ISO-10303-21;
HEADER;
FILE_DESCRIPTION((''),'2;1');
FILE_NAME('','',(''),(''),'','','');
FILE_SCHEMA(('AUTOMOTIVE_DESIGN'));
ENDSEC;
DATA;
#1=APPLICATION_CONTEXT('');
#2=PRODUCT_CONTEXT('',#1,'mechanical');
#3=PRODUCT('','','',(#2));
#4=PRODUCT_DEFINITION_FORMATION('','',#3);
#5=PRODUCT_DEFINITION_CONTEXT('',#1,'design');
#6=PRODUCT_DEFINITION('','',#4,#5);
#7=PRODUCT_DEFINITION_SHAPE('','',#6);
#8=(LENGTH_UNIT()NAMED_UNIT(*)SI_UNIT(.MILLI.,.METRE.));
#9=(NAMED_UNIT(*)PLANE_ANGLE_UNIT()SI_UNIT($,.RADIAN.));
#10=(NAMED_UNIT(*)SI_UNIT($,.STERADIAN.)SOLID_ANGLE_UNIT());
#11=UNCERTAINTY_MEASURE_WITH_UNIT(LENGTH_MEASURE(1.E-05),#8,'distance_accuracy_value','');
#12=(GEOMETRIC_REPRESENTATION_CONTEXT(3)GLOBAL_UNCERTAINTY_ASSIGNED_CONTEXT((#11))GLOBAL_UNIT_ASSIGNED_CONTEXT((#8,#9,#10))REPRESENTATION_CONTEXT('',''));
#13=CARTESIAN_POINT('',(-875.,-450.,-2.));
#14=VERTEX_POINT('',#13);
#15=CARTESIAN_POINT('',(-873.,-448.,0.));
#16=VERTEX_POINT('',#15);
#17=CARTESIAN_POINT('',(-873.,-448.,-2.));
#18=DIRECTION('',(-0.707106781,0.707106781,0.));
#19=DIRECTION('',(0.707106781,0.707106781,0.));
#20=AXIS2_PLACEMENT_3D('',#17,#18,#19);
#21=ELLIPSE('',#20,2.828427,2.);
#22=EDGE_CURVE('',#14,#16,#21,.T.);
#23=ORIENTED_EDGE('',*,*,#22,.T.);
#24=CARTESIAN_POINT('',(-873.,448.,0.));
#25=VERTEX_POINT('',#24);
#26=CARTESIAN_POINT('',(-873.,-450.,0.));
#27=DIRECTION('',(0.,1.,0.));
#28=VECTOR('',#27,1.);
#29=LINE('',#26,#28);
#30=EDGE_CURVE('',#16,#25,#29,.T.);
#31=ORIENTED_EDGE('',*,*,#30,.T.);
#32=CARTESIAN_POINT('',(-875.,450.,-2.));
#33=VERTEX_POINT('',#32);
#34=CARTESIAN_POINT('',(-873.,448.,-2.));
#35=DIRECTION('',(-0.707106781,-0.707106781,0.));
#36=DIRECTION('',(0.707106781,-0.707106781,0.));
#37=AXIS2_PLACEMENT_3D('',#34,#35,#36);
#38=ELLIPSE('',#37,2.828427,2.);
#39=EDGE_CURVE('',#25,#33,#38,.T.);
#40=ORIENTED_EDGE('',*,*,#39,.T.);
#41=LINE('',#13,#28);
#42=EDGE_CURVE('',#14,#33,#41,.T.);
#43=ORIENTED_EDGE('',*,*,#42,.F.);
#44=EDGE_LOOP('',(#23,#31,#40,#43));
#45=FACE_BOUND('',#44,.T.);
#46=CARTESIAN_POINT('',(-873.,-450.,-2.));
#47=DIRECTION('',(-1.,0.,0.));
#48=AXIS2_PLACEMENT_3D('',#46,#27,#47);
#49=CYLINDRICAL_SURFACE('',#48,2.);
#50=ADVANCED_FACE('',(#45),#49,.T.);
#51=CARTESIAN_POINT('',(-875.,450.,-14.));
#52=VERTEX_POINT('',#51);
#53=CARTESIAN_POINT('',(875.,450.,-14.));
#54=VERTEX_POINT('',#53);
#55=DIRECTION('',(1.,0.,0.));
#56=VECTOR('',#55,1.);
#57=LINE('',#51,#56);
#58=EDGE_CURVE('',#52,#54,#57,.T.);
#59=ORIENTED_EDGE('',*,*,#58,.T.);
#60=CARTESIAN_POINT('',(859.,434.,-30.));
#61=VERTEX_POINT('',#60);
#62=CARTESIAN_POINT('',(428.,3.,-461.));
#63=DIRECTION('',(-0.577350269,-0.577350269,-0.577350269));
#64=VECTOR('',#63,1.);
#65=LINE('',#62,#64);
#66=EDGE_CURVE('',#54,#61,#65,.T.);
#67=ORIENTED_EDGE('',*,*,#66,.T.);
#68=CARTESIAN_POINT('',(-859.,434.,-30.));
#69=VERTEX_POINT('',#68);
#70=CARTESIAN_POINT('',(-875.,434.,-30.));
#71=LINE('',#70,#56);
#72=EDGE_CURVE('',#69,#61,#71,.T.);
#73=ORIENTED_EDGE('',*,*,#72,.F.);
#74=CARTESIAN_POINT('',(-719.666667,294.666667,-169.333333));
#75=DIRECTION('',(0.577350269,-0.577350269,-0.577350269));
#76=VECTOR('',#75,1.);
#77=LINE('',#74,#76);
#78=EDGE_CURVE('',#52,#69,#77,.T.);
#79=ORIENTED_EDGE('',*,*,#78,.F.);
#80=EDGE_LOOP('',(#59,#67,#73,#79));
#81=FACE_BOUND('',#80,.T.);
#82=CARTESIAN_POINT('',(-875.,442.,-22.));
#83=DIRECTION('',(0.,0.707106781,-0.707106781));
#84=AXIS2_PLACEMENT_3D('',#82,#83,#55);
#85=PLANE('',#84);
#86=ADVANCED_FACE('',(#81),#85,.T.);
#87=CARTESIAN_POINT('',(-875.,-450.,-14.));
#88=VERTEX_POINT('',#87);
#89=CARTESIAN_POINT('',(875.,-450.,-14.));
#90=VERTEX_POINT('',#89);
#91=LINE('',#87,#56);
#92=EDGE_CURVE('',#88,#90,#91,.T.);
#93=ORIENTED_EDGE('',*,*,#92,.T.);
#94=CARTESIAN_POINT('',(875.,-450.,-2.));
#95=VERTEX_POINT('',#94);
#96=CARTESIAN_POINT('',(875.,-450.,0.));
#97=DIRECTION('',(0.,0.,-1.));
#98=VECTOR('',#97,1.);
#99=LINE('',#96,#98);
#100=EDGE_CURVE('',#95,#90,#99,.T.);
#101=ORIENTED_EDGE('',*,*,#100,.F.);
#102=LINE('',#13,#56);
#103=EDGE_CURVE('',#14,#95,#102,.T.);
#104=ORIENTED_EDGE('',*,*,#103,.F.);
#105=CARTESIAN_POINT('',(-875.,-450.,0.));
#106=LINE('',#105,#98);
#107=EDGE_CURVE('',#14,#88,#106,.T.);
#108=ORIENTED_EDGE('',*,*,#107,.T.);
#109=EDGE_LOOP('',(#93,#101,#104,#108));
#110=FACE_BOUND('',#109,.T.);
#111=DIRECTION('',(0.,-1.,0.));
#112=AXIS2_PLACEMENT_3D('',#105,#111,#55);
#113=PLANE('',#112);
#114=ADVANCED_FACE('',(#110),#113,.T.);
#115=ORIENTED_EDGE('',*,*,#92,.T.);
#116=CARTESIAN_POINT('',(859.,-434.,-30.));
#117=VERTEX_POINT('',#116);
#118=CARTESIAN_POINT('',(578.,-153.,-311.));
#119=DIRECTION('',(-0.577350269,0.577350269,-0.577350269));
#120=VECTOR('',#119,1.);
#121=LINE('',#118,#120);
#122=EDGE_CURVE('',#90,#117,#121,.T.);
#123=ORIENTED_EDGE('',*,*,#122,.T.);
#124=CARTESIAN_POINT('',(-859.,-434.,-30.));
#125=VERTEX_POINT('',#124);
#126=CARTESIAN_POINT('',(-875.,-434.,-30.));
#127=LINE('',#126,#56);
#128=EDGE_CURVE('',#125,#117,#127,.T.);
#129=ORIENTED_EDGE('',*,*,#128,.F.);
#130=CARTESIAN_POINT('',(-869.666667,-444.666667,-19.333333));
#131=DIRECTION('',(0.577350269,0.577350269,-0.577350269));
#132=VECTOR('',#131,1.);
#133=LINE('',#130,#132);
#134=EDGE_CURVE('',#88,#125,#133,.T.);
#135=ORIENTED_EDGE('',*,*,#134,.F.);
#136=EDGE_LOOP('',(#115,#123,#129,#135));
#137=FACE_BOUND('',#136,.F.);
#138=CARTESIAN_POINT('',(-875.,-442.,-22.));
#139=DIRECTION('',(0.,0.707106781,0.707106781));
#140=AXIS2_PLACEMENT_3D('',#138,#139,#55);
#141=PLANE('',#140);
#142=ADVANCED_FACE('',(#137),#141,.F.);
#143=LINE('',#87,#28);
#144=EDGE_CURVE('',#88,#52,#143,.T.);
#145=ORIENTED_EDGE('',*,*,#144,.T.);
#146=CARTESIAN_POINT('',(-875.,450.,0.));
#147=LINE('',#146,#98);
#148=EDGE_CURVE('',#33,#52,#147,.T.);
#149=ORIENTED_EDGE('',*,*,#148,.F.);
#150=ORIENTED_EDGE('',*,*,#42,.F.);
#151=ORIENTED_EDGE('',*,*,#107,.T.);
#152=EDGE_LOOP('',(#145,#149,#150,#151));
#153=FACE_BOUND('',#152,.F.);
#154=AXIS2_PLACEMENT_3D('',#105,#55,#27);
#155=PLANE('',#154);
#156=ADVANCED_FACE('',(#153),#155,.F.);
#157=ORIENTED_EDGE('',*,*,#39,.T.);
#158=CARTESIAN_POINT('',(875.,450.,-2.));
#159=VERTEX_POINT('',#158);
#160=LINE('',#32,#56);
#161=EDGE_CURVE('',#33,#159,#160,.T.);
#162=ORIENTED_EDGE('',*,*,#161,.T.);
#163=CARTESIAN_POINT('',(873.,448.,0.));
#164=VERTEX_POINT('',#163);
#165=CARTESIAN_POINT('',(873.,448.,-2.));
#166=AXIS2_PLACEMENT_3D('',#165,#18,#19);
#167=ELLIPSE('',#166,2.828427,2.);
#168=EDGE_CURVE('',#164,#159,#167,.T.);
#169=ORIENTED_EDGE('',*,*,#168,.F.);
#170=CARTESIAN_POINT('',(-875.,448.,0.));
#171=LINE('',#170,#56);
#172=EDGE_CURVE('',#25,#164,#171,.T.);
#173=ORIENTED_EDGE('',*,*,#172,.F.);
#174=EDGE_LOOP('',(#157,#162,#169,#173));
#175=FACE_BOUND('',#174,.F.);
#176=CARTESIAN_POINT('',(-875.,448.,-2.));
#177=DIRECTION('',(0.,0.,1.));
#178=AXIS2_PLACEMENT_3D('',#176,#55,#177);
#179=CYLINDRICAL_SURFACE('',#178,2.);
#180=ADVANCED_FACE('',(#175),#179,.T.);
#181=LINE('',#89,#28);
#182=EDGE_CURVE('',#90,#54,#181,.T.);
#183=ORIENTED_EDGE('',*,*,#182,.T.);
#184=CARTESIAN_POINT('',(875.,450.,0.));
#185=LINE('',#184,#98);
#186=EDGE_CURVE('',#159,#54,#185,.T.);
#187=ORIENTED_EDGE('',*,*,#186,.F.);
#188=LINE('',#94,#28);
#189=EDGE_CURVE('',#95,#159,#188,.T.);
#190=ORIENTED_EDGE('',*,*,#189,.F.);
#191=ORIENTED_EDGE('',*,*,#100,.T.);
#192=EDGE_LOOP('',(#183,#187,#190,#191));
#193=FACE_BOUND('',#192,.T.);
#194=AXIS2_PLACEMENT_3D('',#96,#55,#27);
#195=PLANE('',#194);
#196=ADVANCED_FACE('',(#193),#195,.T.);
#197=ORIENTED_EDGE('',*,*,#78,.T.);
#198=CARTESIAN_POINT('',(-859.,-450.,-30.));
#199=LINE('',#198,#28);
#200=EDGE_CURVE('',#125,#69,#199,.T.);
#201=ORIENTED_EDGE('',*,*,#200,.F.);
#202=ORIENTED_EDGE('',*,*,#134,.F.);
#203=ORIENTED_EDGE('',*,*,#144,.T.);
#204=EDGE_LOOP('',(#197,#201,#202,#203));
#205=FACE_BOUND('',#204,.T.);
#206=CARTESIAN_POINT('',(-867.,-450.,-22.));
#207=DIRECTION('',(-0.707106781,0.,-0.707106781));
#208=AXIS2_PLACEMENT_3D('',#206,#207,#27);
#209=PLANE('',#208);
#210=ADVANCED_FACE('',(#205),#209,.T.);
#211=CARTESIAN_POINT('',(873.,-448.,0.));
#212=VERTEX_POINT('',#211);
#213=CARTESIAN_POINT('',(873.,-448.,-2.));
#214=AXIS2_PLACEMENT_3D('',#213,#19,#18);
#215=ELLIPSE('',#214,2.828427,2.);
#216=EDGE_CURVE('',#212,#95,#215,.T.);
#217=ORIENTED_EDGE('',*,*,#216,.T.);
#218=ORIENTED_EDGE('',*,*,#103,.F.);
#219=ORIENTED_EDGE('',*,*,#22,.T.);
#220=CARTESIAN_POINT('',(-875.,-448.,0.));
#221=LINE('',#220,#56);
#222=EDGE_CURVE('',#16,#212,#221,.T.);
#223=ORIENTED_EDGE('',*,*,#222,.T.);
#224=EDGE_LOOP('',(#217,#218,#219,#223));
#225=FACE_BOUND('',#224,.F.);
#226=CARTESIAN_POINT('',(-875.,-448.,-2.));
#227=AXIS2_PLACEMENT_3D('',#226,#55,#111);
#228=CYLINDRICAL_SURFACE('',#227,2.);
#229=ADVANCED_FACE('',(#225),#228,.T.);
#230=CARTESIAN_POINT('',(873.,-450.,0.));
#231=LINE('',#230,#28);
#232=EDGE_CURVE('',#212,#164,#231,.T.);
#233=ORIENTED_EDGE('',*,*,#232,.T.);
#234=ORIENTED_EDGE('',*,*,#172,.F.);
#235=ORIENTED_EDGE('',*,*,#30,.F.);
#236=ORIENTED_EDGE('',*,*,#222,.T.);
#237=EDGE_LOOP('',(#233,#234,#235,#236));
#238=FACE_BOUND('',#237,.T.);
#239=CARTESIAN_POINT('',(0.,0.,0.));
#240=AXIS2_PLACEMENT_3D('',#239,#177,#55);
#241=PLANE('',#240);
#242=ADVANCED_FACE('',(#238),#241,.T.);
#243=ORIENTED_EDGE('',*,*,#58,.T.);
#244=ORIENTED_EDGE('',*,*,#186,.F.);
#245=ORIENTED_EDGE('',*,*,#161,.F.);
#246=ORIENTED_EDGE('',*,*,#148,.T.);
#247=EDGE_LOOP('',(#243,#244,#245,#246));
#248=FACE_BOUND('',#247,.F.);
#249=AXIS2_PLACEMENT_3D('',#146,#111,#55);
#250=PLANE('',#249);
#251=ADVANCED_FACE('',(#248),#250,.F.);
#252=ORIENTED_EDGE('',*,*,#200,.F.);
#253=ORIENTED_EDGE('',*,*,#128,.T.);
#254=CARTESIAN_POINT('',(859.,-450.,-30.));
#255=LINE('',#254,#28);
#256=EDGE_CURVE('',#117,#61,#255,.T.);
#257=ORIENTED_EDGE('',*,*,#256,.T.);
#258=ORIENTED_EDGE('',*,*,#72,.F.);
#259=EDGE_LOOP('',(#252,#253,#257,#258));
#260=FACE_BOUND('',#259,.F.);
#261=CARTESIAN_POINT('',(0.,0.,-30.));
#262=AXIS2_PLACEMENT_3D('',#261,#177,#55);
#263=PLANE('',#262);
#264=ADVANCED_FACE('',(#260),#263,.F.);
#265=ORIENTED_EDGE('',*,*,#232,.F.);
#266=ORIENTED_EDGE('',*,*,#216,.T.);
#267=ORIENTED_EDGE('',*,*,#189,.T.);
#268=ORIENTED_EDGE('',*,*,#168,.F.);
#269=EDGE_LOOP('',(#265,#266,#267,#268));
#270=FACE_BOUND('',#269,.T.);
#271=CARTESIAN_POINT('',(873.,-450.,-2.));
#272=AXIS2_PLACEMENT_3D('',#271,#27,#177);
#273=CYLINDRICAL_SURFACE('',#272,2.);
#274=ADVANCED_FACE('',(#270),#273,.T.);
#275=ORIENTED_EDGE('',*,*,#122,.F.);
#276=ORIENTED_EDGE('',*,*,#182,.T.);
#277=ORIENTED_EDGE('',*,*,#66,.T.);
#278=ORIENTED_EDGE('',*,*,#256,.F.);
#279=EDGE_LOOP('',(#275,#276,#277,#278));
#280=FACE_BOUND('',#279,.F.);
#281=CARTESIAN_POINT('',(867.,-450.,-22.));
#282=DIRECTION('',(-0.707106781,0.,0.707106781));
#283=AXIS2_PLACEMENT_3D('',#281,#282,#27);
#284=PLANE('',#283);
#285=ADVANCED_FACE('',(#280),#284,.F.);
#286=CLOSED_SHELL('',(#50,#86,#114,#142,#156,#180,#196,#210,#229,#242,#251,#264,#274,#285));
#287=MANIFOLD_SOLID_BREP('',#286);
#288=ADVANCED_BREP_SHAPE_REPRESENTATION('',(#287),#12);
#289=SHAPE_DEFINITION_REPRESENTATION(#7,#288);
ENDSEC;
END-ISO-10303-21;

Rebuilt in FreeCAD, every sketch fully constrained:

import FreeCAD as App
import Part
import Sketcher

V = App.Vector
Q = App.Units.Quantity


def edges_at(feature, points):
    """Names of the edges that pass closest to the given points."""
    edges = feature.Shape.Edges
    near = lambda p: min(range(len(edges)), key=lambda i: edges[i].distToShape(Part.Vertex(*p))[0])
    return sorted({f"Edge{near(p) + 1}" for p in points})


def add_polygon(sketch, points):
    """Adds a closed chain of lines whose ends are joined by coincident constraints."""
    first, n = sketch.GeometryCount, len(points)
    for a, b in zip(points, points[1:] + points[:1]):
        sketch.addGeometry(Part.LineSegment(App.Vector(*a, 0), App.Vector(*b, 0)), False)
    for i in range(n):
        sketch.addConstraint(Sketcher.Constraint("Coincident", first + i, 2, first + (i + 1) % n, 1))

doc = App.newDocument("Part")
body = doc.addObject("PartDesign::Body", "Body")

# Sketch on XY plane
sketch1 = doc.addObject("Sketcher::SketchObject", "Sketch")
body.addObject(sketch1)
sketch1.AttachmentSupport = (doc.XY_Plane, [""])
sketch1.MapMode = "FlatFace"
add_polygon(sketch1, [(-875, 450), (-875, -450), (875, -450), (875, 450)])  # lines 0-3
sketch1.addConstraint(Sketcher.Constraint("Vertical", 0))
sketch1.addConstraint(Sketcher.Constraint("Horizontal", 1))
sketch1.addConstraint(Sketcher.Constraint("Vertical", 2))
sketch1.addConstraint(Sketcher.Constraint("Horizontal", 3))
sketch1.addConstraint(Sketcher.Constraint("Symmetric", 0, 2, 2, 2, -1, 1))
sketch1.addConstraint(Sketcher.Constraint("DistanceX", 1, 1, 1, 2, Q("1750 mm")))
sketch1.addConstraint(Sketcher.Constraint("DistanceY", 0, 2, 0, 1, Q("900 mm")))
pad1 = doc.addObject("PartDesign::Pad", "Pad")
body.addObject(pad1)
pad1.Profile = sketch1
pad1.Length = 30
pad1.Reversed = True
doc.recompute()

chamfer = doc.addObject("PartDesign::Chamfer", "Chamfer")
body.addObject(chamfer)
chamfer.Base = (pad1, edges_at(pad1, [
    (0, -450, -30),
    (-875, 0, -30),
    (0, 450, -30),
    (875, 0, -30),
]))
chamfer.Size = 16
doc.recompute()

fillet = doc.addObject("PartDesign::Fillet", "Fillet")
body.addObject(fillet)
fillet.Base = (chamfer, edges_at(chamfer, [
    (0, 450, 0),
    (875, 0, 0),
    (0, -450, 0),
    (-875, 0, 0),
]))
fillet.Radius = 2

doc.recompute()
